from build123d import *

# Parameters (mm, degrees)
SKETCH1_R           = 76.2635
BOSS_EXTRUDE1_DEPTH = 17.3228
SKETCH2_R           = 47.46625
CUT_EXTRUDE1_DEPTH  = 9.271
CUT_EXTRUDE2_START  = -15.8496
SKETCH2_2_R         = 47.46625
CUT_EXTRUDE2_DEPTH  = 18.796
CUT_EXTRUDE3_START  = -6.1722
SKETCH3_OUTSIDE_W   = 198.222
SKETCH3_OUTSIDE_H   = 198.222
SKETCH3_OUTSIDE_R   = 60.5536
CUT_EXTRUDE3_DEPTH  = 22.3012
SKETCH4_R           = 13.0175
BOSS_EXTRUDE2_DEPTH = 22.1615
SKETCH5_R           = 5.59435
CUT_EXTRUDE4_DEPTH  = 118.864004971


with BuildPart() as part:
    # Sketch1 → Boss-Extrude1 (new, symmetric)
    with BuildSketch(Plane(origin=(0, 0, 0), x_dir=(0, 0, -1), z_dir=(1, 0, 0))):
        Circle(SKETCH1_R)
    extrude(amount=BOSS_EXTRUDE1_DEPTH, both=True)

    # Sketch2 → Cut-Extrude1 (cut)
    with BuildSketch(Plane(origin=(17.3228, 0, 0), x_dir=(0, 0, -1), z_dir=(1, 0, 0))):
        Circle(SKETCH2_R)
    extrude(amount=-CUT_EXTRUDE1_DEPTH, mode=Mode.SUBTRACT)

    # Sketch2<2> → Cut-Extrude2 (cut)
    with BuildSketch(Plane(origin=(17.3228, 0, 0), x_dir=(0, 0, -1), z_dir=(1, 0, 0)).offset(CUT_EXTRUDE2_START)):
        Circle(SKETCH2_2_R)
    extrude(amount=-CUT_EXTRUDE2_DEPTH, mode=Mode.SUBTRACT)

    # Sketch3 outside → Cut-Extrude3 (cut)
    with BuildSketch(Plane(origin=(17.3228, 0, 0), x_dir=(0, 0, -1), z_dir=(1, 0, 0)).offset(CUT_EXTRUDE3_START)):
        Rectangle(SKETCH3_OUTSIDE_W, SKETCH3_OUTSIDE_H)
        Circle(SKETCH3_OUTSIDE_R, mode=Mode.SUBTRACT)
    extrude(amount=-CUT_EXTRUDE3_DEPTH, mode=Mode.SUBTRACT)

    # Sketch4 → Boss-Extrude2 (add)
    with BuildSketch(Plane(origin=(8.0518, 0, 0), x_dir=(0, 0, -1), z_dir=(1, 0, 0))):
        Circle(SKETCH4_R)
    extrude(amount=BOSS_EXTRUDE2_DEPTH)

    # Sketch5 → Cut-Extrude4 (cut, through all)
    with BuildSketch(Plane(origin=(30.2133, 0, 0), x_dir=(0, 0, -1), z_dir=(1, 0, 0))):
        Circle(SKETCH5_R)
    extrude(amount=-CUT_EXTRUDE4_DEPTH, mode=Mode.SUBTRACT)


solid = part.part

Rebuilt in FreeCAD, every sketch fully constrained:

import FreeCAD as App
import Part
import Sketcher
Q = App.Units.Quantity

doc = App.newDocument("Part")
body = doc.addObject("PartDesign::Body", "Body")

# Sketch on YZ plane
sketch1 = doc.addObject("Sketcher::SketchObject", "Sketch")
body.addObject(sketch1)
sketch1.AttachmentSupport = (doc.YZ_Plane, [""])
sketch1.MapMode = "FlatFace"
sketch1.addGeometry(Part.Circle(App.Vector(0, 0, 0), App.Vector(0, 0, 1), 76.2635), False)
sketch1.addConstraint([
    Sketcher.Constraint("Coincident", 0, 3, -1, 1),
    Sketcher.Constraint("Diameter", 0, Q("6.005 in")),
])
pad1 = doc.addObject("PartDesign::Pad", "Pad")
body.addObject(pad1)
pad1.Profile = sketch1
pad1.Length = Q("1.364 in")
pad1.Midplane = True

# Sketch on YZ plane
sketch2 = doc.addObject("Sketcher::SketchObject", "Sketch001")
body.addObject(sketch2)
sketch2.AttachmentSupport = (doc.YZ_Plane, [""])
sketch2.MapMode = "FlatFace"
sketch2.AttachmentOffset = App.Placement(App.Vector(0, 0, 0.682 * 25.4), App.Rotation())
sketch2.addGeometry(Part.Circle(App.Vector(0, 0, 0), App.Vector(0, 0, 1), 47.46625), False)
sketch2.addConstraint([
    Sketcher.Constraint("Coincident", 0, 3, -1, 1),
    Sketcher.Constraint("Diameter", 0, Q("3.7375 in")),
])
pocket1 = doc.addObject("PartDesign::Pocket", "Pocket")
body.addObject(pocket1)
pocket1.Profile = sketch2
pocket1.Length = Q("0.365 in")

# Sketch on YZ plane
sketch3 = doc.addObject("Sketcher::SketchObject", "Sketch002")
body.addObject(sketch3)
sketch3.AttachmentSupport = (doc.YZ_Plane, [""])
sketch3.MapMode = "FlatFace"
sketch3.AttachmentOffset = App.Placement(App.Vector(0, 0, 0.058 * 25.4), App.Rotation())
sketch3.addGeometry(Part.Circle(App.Vector(0, 0, 0), App.Vector(0, 0, 1), 47.46625), False)
sketch3.addConstraint([
    Sketcher.Constraint("Coincident", 0, 3, -1, 1),
    Sketcher.Constraint("Diameter", 0, Q("3.7375 in")),
])
pocket2 = doc.addObject("PartDesign::Pocket", "Pocket001")
body.addObject(pocket2)
pocket2.Profile = sketch3
pocket2.Length = Q("0.74 in")

# Sketch on YZ plane
sketch4 = doc.addObject("Sketcher::SketchObject", "Sketch003")
body.addObject(sketch4)
sketch4.AttachmentSupport = (doc.YZ_Plane, [""])
sketch4.MapMode = "FlatFace"
sketch4.AttachmentOffset = App.Placement(App.Vector(0, 0, 0.439 * 25.4), App.Rotation())
sketch4.addGeometry([
    Part.LineSegment(App.Vector(99.111, 99.111, 0), App.Vector(-99.111, 99.111, 0)),  # 0
    Part.LineSegment(App.Vector(-99.111, 99.111, 0), App.Vector(-99.111, -99.111, 0)),  # 1
    Part.LineSegment(App.Vector(-99.111, -99.111, 0), App.Vector(99.111, -99.111, 0)),  # 2
    Part.LineSegment(App.Vector(99.111, -99.111, 0), App.Vector(99.111, 99.111, 0)),  # 3
    Part.Circle(App.Vector(0, 0, 0), App.Vector(0, 0, 1), 60.5536),  # 4
], False)
sketch4.addConstraint([
    Sketcher.Constraint("Coincident", 0, 2, 1, 1),
    Sketcher.Constraint("Coincident", 1, 2, 2, 1),
    Sketcher.Constraint("Coincident", 2, 2, 3, 1),
    Sketcher.Constraint("Coincident", 3, 2, 0, 1),
    Sketcher.Constraint("Horizontal", 0),
    Sketcher.Constraint("Vertical", 1),
    Sketcher.Constraint("Horizontal", 2),
    Sketcher.Constraint("Vertical", 3),
    Sketcher.Constraint("Coincident", 4, 3, -1, 1),
    Sketcher.Constraint("Symmetric", 0, 2, 2, 2, -1, 1),
    Sketcher.Constraint("Equal", 2, 1),
    Sketcher.Constraint("Diameter", 4, Q("4.768 in")),
    Sketcher.Constraint("DistanceX", 0, 2, 0, 1, Q("198.222 mm")),
])
pocket3 = doc.addObject("PartDesign::Pocket", "Pocket002")
body.addObject(pocket3)
pocket3.Profile = sketch4
pocket3.Length = Q("0.878 in")

# Sketch on YZ plane
sketch5 = doc.addObject("Sketcher::SketchObject", "Sketch004")
body.addObject(sketch5)
sketch5.AttachmentSupport = (doc.YZ_Plane, [""])
sketch5.MapMode = "FlatFace"
sketch5.AttachmentOffset = App.Placement(App.Vector(0, 0, 0.317 * 25.4), App.Rotation())
sketch5.addGeometry(Part.Circle(App.Vector(0, 0, 0), App.Vector(0, 0, 1), 13.0175), False)
sketch5.addConstraint([
    Sketcher.Constraint("Coincident", 0, 3, -1, 1),
    Sketcher.Constraint("Diameter", 0, Q("1.025 in")),
])
pad2 = doc.addObject("PartDesign::Pad", "Pad001")
body.addObject(pad2)
pad2.Profile = sketch5
pad2.Length = Q("0.8725 in")

# Sketch on YZ plane
sketch6 = doc.addObject("Sketcher::SketchObject", "Sketch005")
body.addObject(sketch6)
sketch6.AttachmentSupport = (doc.YZ_Plane, [""])
sketch6.MapMode = "FlatFace"
sketch6.AttachmentOffset = App.Placement(App.Vector(0, 0, 1.1895 * 25.4), App.Rotation())
sketch6.addGeometry(Part.Circle(App.Vector(0, 0, 0), App.Vector(0, 0, 1), 5.59435), False)
sketch6.addConstraint([
    Sketcher.Constraint("Coincident", 0, 3, -1, 1),
    Sketcher.Constraint("Diameter", 0, Q("0.4405 in")),
])
pocket4 = doc.addObject("PartDesign::Pocket", "Pocket003")
body.addObject(pocket4)
pocket4.Profile = sketch6
pocket4.Type = "ThroughAll"

doc.recompute()
